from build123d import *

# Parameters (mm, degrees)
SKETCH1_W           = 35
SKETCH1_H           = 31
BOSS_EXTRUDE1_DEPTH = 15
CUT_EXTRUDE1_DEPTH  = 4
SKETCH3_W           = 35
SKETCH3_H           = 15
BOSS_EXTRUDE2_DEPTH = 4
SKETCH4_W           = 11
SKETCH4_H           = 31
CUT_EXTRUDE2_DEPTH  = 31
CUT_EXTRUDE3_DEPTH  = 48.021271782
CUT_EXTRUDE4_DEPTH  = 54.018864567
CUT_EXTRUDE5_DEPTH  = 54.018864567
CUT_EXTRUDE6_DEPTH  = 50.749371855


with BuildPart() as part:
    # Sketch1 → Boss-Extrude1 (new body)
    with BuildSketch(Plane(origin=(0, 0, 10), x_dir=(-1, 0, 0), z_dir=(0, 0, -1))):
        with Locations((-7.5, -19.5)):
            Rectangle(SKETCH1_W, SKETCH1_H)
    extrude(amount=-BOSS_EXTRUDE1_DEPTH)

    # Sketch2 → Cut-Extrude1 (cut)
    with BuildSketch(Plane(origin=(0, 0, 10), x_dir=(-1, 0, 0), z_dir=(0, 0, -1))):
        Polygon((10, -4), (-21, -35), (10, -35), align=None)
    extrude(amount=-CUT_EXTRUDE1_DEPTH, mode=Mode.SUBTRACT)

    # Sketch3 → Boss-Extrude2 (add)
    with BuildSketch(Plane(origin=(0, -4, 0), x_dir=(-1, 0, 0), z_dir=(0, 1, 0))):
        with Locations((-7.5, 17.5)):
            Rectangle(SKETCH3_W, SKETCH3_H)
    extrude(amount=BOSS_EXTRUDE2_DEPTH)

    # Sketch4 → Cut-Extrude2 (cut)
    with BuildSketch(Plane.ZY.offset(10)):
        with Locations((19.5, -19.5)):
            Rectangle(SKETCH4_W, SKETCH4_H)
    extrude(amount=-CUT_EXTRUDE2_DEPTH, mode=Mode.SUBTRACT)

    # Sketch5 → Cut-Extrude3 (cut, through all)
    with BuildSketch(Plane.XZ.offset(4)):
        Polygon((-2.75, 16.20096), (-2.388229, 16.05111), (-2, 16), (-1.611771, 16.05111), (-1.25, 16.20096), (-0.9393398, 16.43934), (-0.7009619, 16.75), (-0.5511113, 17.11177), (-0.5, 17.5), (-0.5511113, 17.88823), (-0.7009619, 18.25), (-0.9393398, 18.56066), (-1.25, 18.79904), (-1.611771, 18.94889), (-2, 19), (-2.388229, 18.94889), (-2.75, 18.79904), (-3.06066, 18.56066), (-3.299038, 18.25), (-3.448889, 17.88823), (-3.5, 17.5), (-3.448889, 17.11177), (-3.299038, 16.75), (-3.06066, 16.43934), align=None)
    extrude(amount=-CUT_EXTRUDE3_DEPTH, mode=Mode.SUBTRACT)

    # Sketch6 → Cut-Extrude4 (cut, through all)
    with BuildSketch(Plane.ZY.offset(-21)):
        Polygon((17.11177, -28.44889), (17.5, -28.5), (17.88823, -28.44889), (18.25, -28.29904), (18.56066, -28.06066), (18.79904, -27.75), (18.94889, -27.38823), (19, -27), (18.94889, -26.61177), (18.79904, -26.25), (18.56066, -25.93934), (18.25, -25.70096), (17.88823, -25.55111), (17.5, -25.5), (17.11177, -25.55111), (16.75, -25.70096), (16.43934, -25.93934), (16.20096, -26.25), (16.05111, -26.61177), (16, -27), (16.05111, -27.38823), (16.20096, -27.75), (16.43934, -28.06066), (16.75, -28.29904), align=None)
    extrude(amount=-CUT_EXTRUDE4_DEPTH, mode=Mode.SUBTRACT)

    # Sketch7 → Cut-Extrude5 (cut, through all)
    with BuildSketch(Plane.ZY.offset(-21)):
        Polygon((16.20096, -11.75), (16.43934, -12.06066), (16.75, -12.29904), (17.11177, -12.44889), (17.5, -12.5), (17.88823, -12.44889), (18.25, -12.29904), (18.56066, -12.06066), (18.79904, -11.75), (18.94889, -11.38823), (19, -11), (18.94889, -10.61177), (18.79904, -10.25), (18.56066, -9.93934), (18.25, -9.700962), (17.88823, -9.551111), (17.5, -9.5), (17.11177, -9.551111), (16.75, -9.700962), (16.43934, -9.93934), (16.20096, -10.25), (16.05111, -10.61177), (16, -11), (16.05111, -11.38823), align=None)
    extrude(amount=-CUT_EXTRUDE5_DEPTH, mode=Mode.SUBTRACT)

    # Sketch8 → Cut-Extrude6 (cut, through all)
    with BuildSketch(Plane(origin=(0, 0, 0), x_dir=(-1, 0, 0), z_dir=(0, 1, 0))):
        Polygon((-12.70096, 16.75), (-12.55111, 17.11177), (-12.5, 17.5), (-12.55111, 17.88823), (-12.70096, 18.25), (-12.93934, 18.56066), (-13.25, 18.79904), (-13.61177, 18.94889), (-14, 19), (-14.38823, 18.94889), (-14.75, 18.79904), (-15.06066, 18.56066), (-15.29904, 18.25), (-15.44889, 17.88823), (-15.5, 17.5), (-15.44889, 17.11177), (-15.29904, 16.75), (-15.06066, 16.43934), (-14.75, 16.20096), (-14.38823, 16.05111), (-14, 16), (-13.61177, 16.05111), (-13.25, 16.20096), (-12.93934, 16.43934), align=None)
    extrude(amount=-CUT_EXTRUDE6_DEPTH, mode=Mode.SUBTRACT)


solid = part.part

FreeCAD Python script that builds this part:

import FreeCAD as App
import Part
import Sketcher
Q = App.Units.Quantity


def add_polygon(sketch, points):
    """Adds a closed chain of lines whose ends are joined by coincident constraints."""
    first, n = sketch.GeometryCount, len(points)
    for a, b in zip(points, points[1:] + points[:1]):
        sketch.addGeometry(Part.LineSegment(App.Vector(*a, 0), App.Vector(*b, 0)), False)
    for i in range(n):
        sketch.addConstraint(Sketcher.Constraint("Coincident", first + i, 2, first + (i + 1) % n, 1))

doc = App.newDocument("Part")
params = doc.addObject("Spreadsheet::Sheet", "Params")
for row, (alias, value) in enumerate([
    ("sketch1_width", "35 mm"),
    ("sketch1_height", "31 mm"),
    ("pad1_length", "15 mm"),
    ("sketch2_width", "31 mm"),
    ("pocket1_length", "4 mm"),
    ("sketch3_width", "35 mm"),
    ("sketch3_height", "15 mm"),
    ("pad2_length", "4 mm"),
    ("sketch4_width", "31 mm"),
    ("sketch4_height", "11 mm"),
    ("pocket2_length", "31 mm"),
], start=1):
    params.set(f"A{row}", alias)
    params.set(f"B{row}", "=" + value)
    params.setAlias(f"B{row}", alias)

body = doc.addObject("PartDesign::Body", "Body")

# Sketch on XY plane
sketch1 = body.newObject("Sketcher::SketchObject", "Sketch")
sketch1.AttachmentSupport = (doc.getObject("XY_Plane"), [""])
sketch1.MapMode = "FlatFace"
sketch1.AttachmentOffset = App.Placement(App.Vector(0, 0, 10), App.Rotation())
add_polygon(sketch1, [(25, -4), (25, -35), (-10, -35), (-10, -4)])  # lines 0-3
sketch1.addConstraint(Sketcher.Constraint("Vertical", 0))
sketch1.addConstraint(Sketcher.Constraint("Horizontal", 1))
sketch1.addConstraint(Sketcher.Constraint("Vertical", 2))
sketch1.addConstraint(Sketcher.Constraint("Horizontal", 3))
sketch1.addConstraint(Sketcher.Constraint("DistanceX", 1, 2, 1, 1, 35.0))
sketch1.addConstraint(Sketcher.Constraint("DistanceY", 0, 2, 0, 1, 31.0))
sketch1.addConstraint(Sketcher.Constraint("DistanceX", -1, 1, 0, 2, 25.0))
sketch1.addConstraint(Sketcher.Constraint("DistanceY", 0, 2, -1, 1, 35.0))
sketch1.setExpression("Constraints[8]", "Params.sketch1_width")
sketch1.setExpression("Constraints[9]", "Params.sketch1_height")
pad1 = body.newObject("PartDesign::Pad", "Pad")
pad1.Profile = sketch1
pad1.setExpression("Length", "Params.pad1_length")

# Sketch on XY plane
sketch2 = body.newObject("Sketcher::SketchObject", "Sketch001")
sketch2.AttachmentSupport = (doc.getObject("XY_Plane"), [""])
sketch2.MapMode = "FlatFace"
sketch2.AttachmentOffset = App.Placement(App.Vector(0, 0, 10), App.Rotation())
add_polygon(sketch2, [(-10, -4), (21, -35), (-10, -35)])  # lines 0-2
sketch2.addConstraint(Sketcher.Constraint("Horizontal", 1))
sketch2.addConstraint(Sketcher.Constraint("Vertical", 2))
sketch2.addConstraint(Sketcher.Constraint("Equal", 1, 2))
sketch2.addConstraint(Sketcher.Constraint("DistanceX", 1, 2, 1, 1, 31.0))
sketch2.addConstraint(Sketcher.Constraint("DistanceX", -1, 1, 0, 2, 21.0))
sketch2.addConstraint(Sketcher.Constraint("DistanceY", 0, 2, -1, 1, 35.0))
sketch2.setExpression("Constraints[6]", "Params.sketch2_width")
pocket1 = body.newObject("PartDesign::Pocket", "Pocket")
pocket1.Profile = sketch2
pocket1.setExpression("Length", "Params.pocket1_length")
pocket1.Reversed = True

# Sketch on XZ plane
sketch3 = body.newObject("Sketcher::SketchObject", "Sketch002")
sketch3.AttachmentSupport = (doc.getObject("XZ_Plane"), [""])
sketch3.MapMode = "FlatFace"
sketch3.AttachmentOffset = App.Placement(App.Vector(0, 0, 4), App.Rotation())
add_polygon(sketch3, [(25, 25), (25, 10), (-10, 10), (-10, 25)])  # lines 0-3
sketch3.addConstraint(Sketcher.Constraint("Vertical", 0))
sketch3.addConstraint(Sketcher.Constraint("Horizontal", 1))
sketch3.addConstraint(Sketcher.Constraint("Vertical", 2))
sketch3.addConstraint(Sketcher.Constraint("Horizontal", 3))
sketch3.addConstraint(Sketcher.Constraint("DistanceX", 1, 2, 1, 1, 35.0))
sketch3.addConstraint(Sketcher.Constraint("DistanceY", 0, 2, 0, 1, 15.0))
sketch3.addConstraint(Sketcher.Constraint("DistanceX", -1, 1, 0, 2, 25.0))
sketch3.addConstraint(Sketcher.Constraint("DistanceY", -1, 1, 0, 2, 10.0))
sketch3.setExpression("Constraints[8]", "Params.sketch3_width")
sketch3.setExpression("Constraints[9]", "Params.sketch3_height")
pad2 = body.newObject("PartDesign::Pad", "Pad001")
pad2.Profile = sketch3
pad2.setExpression("Length", "Params.pad2_length")
pad2.Reversed = True

# Sketch on YZ plane
sketch4 = body.newObject("Sketcher::SketchObject", "Sketch003")
sketch4.AttachmentSupport = (doc.getObject("YZ_Plane"), [""])
sketch4.MapMode = "FlatFace"
sketch4.AttachmentOffset = App.Placement(App.Vector(0, 0, -10), App.Rotation())
add_polygon(sketch4, [(-4, 14), (-35, 14), (-35, 25), (-4, 25)])  # lines 0-3
sketch4.addConstraint(Sketcher.Constraint("Horizontal", 0))
sketch4.addConstraint(Sketcher.Constraint("Vertical", 1))
sketch4.addConstraint(Sketcher.Constraint("Horizontal", 2))
sketch4.addConstraint(Sketcher.Constraint("Vertical", 3))
sketch4.addConstraint(Sketcher.Constraint("DistanceX", 0, 2, 0, 1, 31.0))
sketch4.addConstraint(Sketcher.Constraint("DistanceY", 1, 1, 1, 2, 11.0))
sketch4.addConstraint(Sketcher.Constraint("DistanceX", 0, 2, -1, 1, 35.0))
sketch4.addConstraint(Sketcher.Constraint("DistanceY", -1, 1, 0, 2, 14.0))
sketch4.setExpression("Constraints[8]", "Params.sketch4_width")
sketch4.setExpression("Constraints[9]", "Params.sketch4_height")
pocket2 = body.newObject("PartDesign::Pocket", "Pocket001")
pocket2.Profile = sketch4
pocket2.setExpression("Length", "Params.pocket2_length")
pocket2.Reversed = True

# Sketch on XZ plane
sketch5 = body.newObject("Sketcher::SketchObject", "Sketch004")
sketch5.AttachmentSupport = (doc.getObject("XZ_Plane"), [""])
sketch5.MapMode = "FlatFace"
sketch5.AttachmentOffset = App.Placement(App.Vector(0, 0, 4), App.Rotation())
add_polygon(sketch5, [(-2.75, 16.2), (-2.39, 16.05), (-2, 16), (-1.61, 16.05), (-1.25, 16.2), (-0.94, 16.44), (-0.7, 16.75), (-0.55, 17.11), (-0.5, 17.5), (-0.55, 17.89), (-0.7, 18.25), (-0.94, 18.56), (-1.25, 18.8), (-1.61, 18.95), (-2, 19), (-2.39, 18.95), (-2.75, 18.8), (-3.06, 18.56), (-3.3, 18.25), (-3.45, 17.89), (-3.5, 17.5), (-3.45, 17.11), (-3.3, 16.75), (-3.06, 16.44)])  # lines 0-23
sketch5.addConstraint(Sketcher.Constraint("Parallel", 0, 12))
sketch5.addConstraint(Sketcher.Constraint("Parallel", 1, 13))
sketch5.addConstraint(Sketcher.Constraint("Parallel", 2, 14))
sketch5.addConstraint(Sketcher.Constraint("Parallel", 3, 15))
sketch5.addConstraint(Sketcher.Constraint("Parallel", 4, 16))
sketch5.addConstraint(Sketcher.Constraint("Parallel", 5, 17))
sketch5.addConstraint(Sketcher.Constraint("Parallel", 6, 18))
sketch5.addConstraint(Sketcher.Constraint("Parallel", 7, 19))
sketch5.addConstraint(Sketcher.Constraint("Parallel", 8, 20))
sketch5.addConstraint(Sketcher.Constraint("Parallel", 9, 21))
sketch5.addConstraint(Sketcher.Constraint("Parallel", 10, 22))
sketch5.addConstraint(Sketcher.Constraint("Parallel", 11, 23))
sketch5.addConstraint(Sketcher.Constraint("Horizontal", 0, 2, 2, 2))
sketch5.addConstraint(Sketcher.Constraint("Horizontal", 12, 2, 14, 2))
sketch5.addConstraint(Sketcher.Constraint("Horizontal", 11, 2, 15, 2))
sketch5.addConstraint(Sketcher.Constraint("Horizontal", 10, 2, 16, 2))
sketch5.addConstraint(Sketcher.Constraint("Horizontal", 9, 2, 17, 2))
sketch5.addConstraint(Sketcher.Constraint("Horizontal", 8, 2, 18, 2))
sketch5.addConstraint(Sketcher.Constraint("Horizontal", 7, 2, 19, 2))
sketch5.addConstraint(Sketcher.Constraint("Horizontal", 6, 2, 20, 2))
sketch5.addConstraint(Sketcher.Constraint("Horizontal", 5, 2, 21, 2))
sketch5.addConstraint(Sketcher.Constraint("Horizontal", 4, 2, 22, 2))
sketch5.addConstraint(Sketcher.Constraint("Horizontal", 3, 2, 23, 2))
sketch5.addConstraint(Sketcher.Constraint("Vertical", 6, 2, 8, 2))
sketch5.addConstraint(Sketcher.Constraint("Vertical", 5, 2, 9, 2))
sketch5.addConstraint(Sketcher.Constraint("Vertical", 4, 2, 10, 2))
sketch5.addConstraint(Sketcher.Constraint("Vertical", 3, 2, 11, 2))
sketch5.addConstraint(Sketcher.Constraint("Vertical", 2, 2, 12, 2))
sketch5.addConstraint(Sketcher.Constraint("Vertical", 1, 2, 13, 2))
sketch5.addConstraint(Sketcher.Constraint("Vertical", 0, 2, 14, 2))
sketch5.addConstraint(Sketcher.Constraint("Vertical", 18, 2, 20, 2))
sketch5.addConstraint(Sketcher.Constraint("Vertical", 17, 2, 21, 2))
sketch5.addConstraint(Sketcher.Constraint("Vertical", 16, 2, 22, 2))
sketch5.addConstraint(Sketcher.Constraint("Vertical", 15, 2, 23, 2))
sketch5.addConstraint(Sketcher.Constraint("Equal", 0, 1))
sketch5.addConstraint(Sketcher.Constraint("Equal", 3, 4))
sketch5.addConstraint(Sketcher.Constraint("Equal", 4, 5))
sketch5.addConstraint(Sketcher.Constraint("Equal", 5, 6))
sketch5.addConstraint(Sketcher.Constraint("Equal", 5, 7))
sketch5.addConstraint(Sketcher.Constraint("DistanceX", 1, 2, -1, 1, 2.0))
sketch5.addConstraint(Sketcher.Constraint("DistanceY", -1, 1, 1, 2, 16.0))
sketch5.addConstraint(Sketcher.Constraint("DistanceY", -1, 1, 13, 2, 19.0))
sketch5.addConstraint(Sketcher.Constraint("Angle", 5, Q("52.499989 deg")))
sketch5.addConstraint(Sketcher.Constraint("DistanceX", 7, 2, -1, 1, 0.5))
sketch5.addConstraint(Sketcher.Constraint("DistanceY", 5, 2, 9, 2, 1.5))
sketch5.addConstraint(Sketcher.Constraint("DistanceX", 15, 2, 11, 2, 1.5))
sketch5.addConstraint(Sketcher.Constraint("Distance", 1, 0.391579))
sketch5.addConstraint(Sketcher.Constraint("DistanceX", 0, 2, -1, 1, 2.388229))
pocket3 = body.newObject("PartDesign::Pocket", "Pocket002")
pocket3.Profile = sketch5
pocket3.Type = "ThroughAll"

# Sketch on YZ plane
sketch6 = body.newObject("Sketcher::SketchObject", "Sketch005")
sketch6.AttachmentSupport = (doc.getObject("YZ_Plane"), [""])
sketch6.MapMode = "FlatFace"
sketch6.AttachmentOffset = App.Placement(App.Vector(0, 0, 21), App.Rotation())
add_polygon(sketch6, [(-28.45, 17.11), (-28.5, 17.5), (-28.45, 17.89), (-28.3, 18.25), (-28.06, 18.56), (-27.75, 18.8), (-27.39, 18.95), (-27, 19), (-26.61, 18.95), (-26.25, 18.8), (-25.94, 18.56), (-25.7, 18.25), (-25.55, 17.89), (-25.5, 17.5), (-25.55, 17.11), (-25.7, 16.75), (-25.94, 16.44), (-26.25, 16.2), (-26.61, 16.05), (-27, 16), (-27.39, 16.05), (-27.75, 16.2), (-28.06, 16.44), (-28.3, 16.75)])  # lines 0-23
sketch6.addConstraint(Sketcher.Constraint("Perpendicular", 0, 6))
sketch6.addConstraint(Sketcher.Constraint("Perpendicular", 1, 7))
sketch6.addConstraint(Sketcher.Constraint("Perpendicular", 2, 8))
sketch6.addConstraint(Sketcher.Constraint("Perpendicular", 3, 9))
sketch6.addConstraint(Sketcher.Constraint("Perpendicular", 4, 10))
sketch6.addConstraint(Sketcher.Constraint("Perpendicular", 5, 11))
sketch6.addConstraint(Sketcher.Constraint("Perpendicular", 6, 12))
sketch6.addConstraint(Sketcher.Constraint("Perpendicular", 7, 13))
sketch6.addConstraint(Sketcher.Constraint("Perpendicular", 8, 14))
sketch6.addConstraint(Sketcher.Constraint("Perpendicular", 9, 15))
sketch6.addConstraint(Sketcher.Constraint("Perpendicular", 10, 16))
sketch6.addConstraint(Sketcher.Constraint("Perpendicular", 11, 17))
sketch6.addConstraint(Sketcher.Constraint("Perpendicular", 12, 18))
sketch6.addConstraint(Sketcher.Constraint("Perpendicular", 13, 19))
sketch6.addConstraint(Sketcher.Constraint("Perpendicular", 14, 20))
sketch6.addConstraint(Sketcher.Constraint("Perpendicular", 15, 21))
sketch6.addConstraint(Sketcher.Constraint("Perpendicular", 16, 22))
sketch6.addConstraint(Sketcher.Constraint("Perpendicular", 17, 23))
sketch6.addConstraint(Sketcher.Constraint("Horizontal", 5, 2, 7, 2))
sketch6.addConstraint(Sketcher.Constraint("Horizontal", 4, 2, 8, 2))
sketch6.addConstraint(Sketcher.Constraint("Horizontal", 3, 2, 9, 2))
sketch6.addConstraint(Sketcher.Constraint("Horizontal", 2, 2, 10, 2))
sketch6.addConstraint(Sketcher.Constraint("Horizontal", 1, 2, 11, 2))
sketch6.addConstraint(Sketcher.Constraint("Horizontal", 0, 2, 12, 2))
sketch6.addConstraint(Sketcher.Constraint("Horizontal", 17, 2, 19, 2))
sketch6.addConstraint(Sketcher.Constraint("Horizontal", 16, 2, 20, 2))
sketch6.addConstraint(Sketcher.Constraint("Horizontal", 15, 2, 21, 2))
sketch6.addConstraint(Sketcher.Constraint("Horizontal", 14, 2, 22, 2))
sketch6.addConstraint(Sketcher.Constraint("Horizontal", 13, 2, 23, 2))
sketch6.addConstraint(Sketcher.Constraint("Vertical", 11, 2, 13, 2))
sketch6.addConstraint(Sketcher.Constraint("Vertical", 10, 2, 14, 2))
sketch6.addConstraint(Sketcher.Constraint("Vertical", 9, 2, 15, 2))
sketch6.addConstraint(Sketcher.Constraint("Vertical", 8, 2, 16, 2))
sketch6.addConstraint(Sketcher.Constraint("Vertical", 7, 2, 17, 2))
sketch6.addConstraint(Sketcher.Constraint("Vertical", 6, 2, 18, 2))
sketch6.addConstraint(Sketcher.Constraint("Vertical", 5, 2, 19, 2))
sketch6.addConstraint(Sketcher.Constraint("Vertical", 4, 2, 20, 2))
sketch6.addConstraint(Sketcher.Constraint("Equal", 1, 3))
sketch6.addConstraint(Sketcher.Constraint("Equal", 3, 4))
sketch6.addConstraint(Sketcher.Constraint("Equal", 2, 5))
sketch6.addConstraint(Sketcher.Constraint("Equal", 4, 6))
sketch6.addConstraint(Sketcher.Constraint("DistanceX", 6, 2, -1, 1, 27.0))
sketch6.addConstraint(Sketcher.Constraint("DistanceY", -1, 1, 6, 2, 19.0))
sketch6.addConstraint(Sketcher.Constraint("DistanceY", -1, 1, 18, 2, 16.0))
sketch6.addConstraint(Sketcher.Constraint("Angle", 2, Q("67.500005 deg")))
sketch6.addConstraint(Sketcher.Constraint("DistanceX", 4, 2, 8, 2, 1.5))
sketch6.addConstraint(Sketcher.Constraint("Distance", 0, 0.39158))
sketch6.addConstraint(Sketcher.Constraint("DistanceX", 1, 2, -1, 1, 28.44889))
pocket4 = body.newObject("PartDesign::Pocket", "Pocket003")
pocket4.Profile = sketch6
pocket4.Type = "ThroughAll"
pocket4.Reversed = True

# Sketch on YZ plane
sketch7 = body.newObject("Sketcher::SketchObject", "Sketch006")
sketch7.AttachmentSupport = (doc.getObject("YZ_Plane"), [""])
sketch7.MapMode = "FlatFace"
sketch7.AttachmentOffset = App.Placement(App.Vector(0, 0, 21), App.Rotation())
add_polygon(sketch7, [(-11.75, 16.20096), (-12.06066, 16.43934), (-12.29904, 16.75), (-12.44889, 17.11177), (-12.5, 17.5), (-12.44889, 17.88823), (-12.29904, 18.25), (-12.06066, 18.56066), (-11.75, 18.79904), (-11.38823, 18.94889), (-11, 19), (-10.61177, 18.94889), (-10.25, 18.79904), (-9.93934, 18.56066), (-9.700962, 18.25), (-9.551111, 17.88823), (-9.5, 17.5), (-9.551111, 17.11177), (-9.700962, 16.75), (-9.93934, 16.43934), (-10.25, 16.20096), (-10.61177, 16.05111), (-11, 16), (-11.38823, 16.05111)])  # lines 0-23
sketch7.addConstraint(Sketcher.Constraint("DistanceX", 9, 2, -1, 1, 11.0))
sketch7.addConstraint(Sketcher.Constraint("DistanceY", -1, 1, 9, 2, 19.0))
sketch7.addConstraint(Sketcher.Constraint("DistanceX", 21, 2, -1, 1, 11.0))
sketch7.addConstraint(Sketcher.Constraint("DistanceY", -1, 1, 21, 2, 16.0))
sketch7.addConstraint(Sketcher.Constraint("DistanceX", 3, 2, -1, 1, 12.5))
sketch7.addConstraint(Sketcher.Constraint("DistanceY", -1, 1, 3, 2, 17.5))
sketch7.addConstraint(Sketcher.Constraint("DistanceX", 15, 2, -1, 1, 9.5))
sketch7.addConstraint(Sketcher.Constraint("DistanceY", -1, 1, 15, 2, 17.5))
sketch7.addConstraint(Sketcher.Constraint("DistanceY", 1, 2, 5, 2, 1.5))
sketch7.addConstraint(Sketcher.Constraint("DistanceX", 7, 2, 11, 2, 1.5))
sketch7.addConstraint(Sketcher.Constraint("DistanceY", 17, 2, 13, 2, 1.5))
sketch7.addConstraint(Sketcher.Constraint("DistanceY", -1, 1, 1, 2, 16.75))
sketch7.addConstraint(Sketcher.Constraint("DistanceX", 7, 2, -1, 1, 11.75))
sketch7.addConstraint(Sketcher.Constraint("DistanceY", -1, 1, 13, 2, 18.25))
sketch7.addConstraint(Sketcher.Constraint("DistanceX", 19, 2, -1, 1, 10.25))
sketch7.addConstraint(Sketcher.Constraint("DistanceX", 23, 2, -1, 1, 11.75))
sketch7.addConstraint(Sketcher.Constraint("Distance", 0, 0.39158))
sketch7.addConstraint(Sketcher.Constraint("Distance", 1, 0.39158))
sketch7.addConstraint(Sketcher.Constraint("Distance", 3, 0.39158))
sketch7.addConstraint(Sketcher.Constraint("Distance", 4, 0.39158))
sketch7.addConstraint(Sketcher.Constraint("Distance", 6, 0.39158))
sketch7.addConstraint(Sketcher.Constraint("Distance", 7, 0.39158))
sketch7.addConstraint(Sketcher.Constraint("Distance", 9, 0.39158))
sketch7.addConstraint(Sketcher.Constraint("Distance", 10, 0.39158))
sketch7.addConstraint(Sketcher.Constraint("Distance", 12, 0.39158))
sketch7.addConstraint(Sketcher.Constraint("Distance", 13, 0.391578))
sketch7.addConstraint(Sketcher.Constraint("Distance", 15, 0.39158))
sketch7.addConstraint(Sketcher.Constraint("Distance", 16, 0.39158))
sketch7.addConstraint(Sketcher.Constraint("Distance", 18, 0.391578))
sketch7.addConstraint(Sketcher.Constraint("Distance", 19, 0.39158))
sketch7.addConstraint(Sketcher.Constraint("Distance", 21, 0.39158))
sketch7.addConstraint(Sketcher.Constraint("Distance", 22, 0.39158))
sketch7.addConstraint(Sketcher.Constraint("DistanceX", 0, 2, -1, 1, 12.06066))
sketch7.addConstraint(Sketcher.Constraint("DistanceY", -1, 1, 0, 2, 16.43934))
sketch7.addConstraint(Sketcher.Constraint("DistanceX", 2, 2, -1, 1, 12.44889))
sketch7.addConstraint(Sketcher.Constraint("DistanceX", 4, 2, -1, 1, 12.44889))
sketch7.addConstraint(Sketcher.Constraint("DistanceX", 5, 2, -1, 1, 12.29904))
sketch7.addConstraint(Sketcher.Constraint("DistanceX", 6, 2, -1, 1, 12.06066))
sketch7.addConstraint(Sketcher.Constraint("DistanceX", 8, 2, -1, 1, 11.38823))
sketch7.addConstraint(Sketcher.Constraint("DistanceX", 10, 2, -1, 1, 10.61177))
sketch7.addConstraint(Sketcher.Constraint("DistanceY", -1, 1, 11, 2, 18.79904))
sketch7.addConstraint(Sketcher.Constraint("DistanceX", 12, 2, -1, 1, 9.93934))
sketch7.addConstraint(Sketcher.Constraint("DistanceX", 14, 2, -1, 1, 9.551111))
sketch7.addConstraint(Sketcher.Constraint("DistanceX", 16, 2, -1, 1, 9.551111))
sketch7.addConstraint(Sketcher.Constraint("DistanceX", 18, 2, -1, 1, 9.93934))
sketch7.addConstraint(Sketcher.Constraint("DistanceY", -1, 1, 18, 2, 16.43934))
sketch7.addConstraint(Sketcher.Constraint("DistanceX", 20, 2, -1, 1, 10.61177))
sketch7.addConstraint(Sketcher.Constraint("DistanceX", 22, 2, -1, 1, 11.38823))
pocket5 = body.newObject("PartDesign::Pocket", "Pocket004")
pocket5.Profile = sketch7
pocket5.Type = "ThroughAll"
pocket5.Reversed = True

# Sketch on XZ plane
sketch8 = body.newObject("Sketcher::SketchObject", "Sketch007")
sketch8.AttachmentSupport = (doc.getObject("XZ_Plane"), [""])
sketch8.MapMode = "FlatFace"
add_polygon(sketch8, [(12.7, 16.75), (12.55, 17.11), (12.5, 17.5), (12.55, 17.89), (12.7, 18.25), (12.94, 18.56), (13.25, 18.8), (13.61, 18.95), (14, 19), (14.39, 18.95), (14.75, 18.8), (15.06, 18.56), (15.3, 18.25), (15.45, 17.89), (15.5, 17.5), (15.45, 17.11), (15.3, 16.75), (15.06, 16.44), (14.75, 16.2), (14.39, 16.05), (14, 16), (13.61, 16.05), (13.25, 16.2), (12.94, 16.44)])  # lines 0-23
sketch8.addConstraint(Sketcher.Constraint("Perpendicular", 0, 6))
sketch8.addConstraint(Sketcher.Constraint("Perpendicular", 1, 7))
sketch8.addConstraint(Sketcher.Constraint("Perpendicular", 2, 8))
sketch8.addConstraint(Sketcher.Constraint("Perpendicular", 3, 9))
sketch8.addConstraint(Sketcher.Constraint("Perpendicular", 4, 10))
sketch8.addConstraint(Sketcher.Constraint("Perpendicular", 5, 11))
sketch8.addConstraint(Sketcher.Constraint("Perpendicular", 6, 12))
sketch8.addConstraint(Sketcher.Constraint("Perpendicular", 7, 13))
sketch8.addConstraint(Sketcher.Constraint("Perpendicular", 8, 14))
sketch8.addConstraint(Sketcher.Constraint("Perpendicular", 9, 15))
sketch8.addConstraint(Sketcher.Constraint("Perpendicular", 10, 16))
sketch8.addConstraint(Sketcher.Constraint("Perpendicular", 11, 17))
sketch8.addConstraint(Sketcher.Constraint("Perpendicular", 12, 18))
sketch8.addConstraint(Sketcher.Constraint("Perpendicular", 13, 19))
sketch8.addConstraint(Sketcher.Constraint("Perpendicular", 14, 20))
sketch8.addConstraint(Sketcher.Constraint("Perpendicular", 15, 21))
sketch8.addConstraint(Sketcher.Constraint("Perpendicular", 16, 22))
sketch8.addConstraint(Sketcher.Constraint("Perpendicular", 17, 23))
sketch8.addConstraint(Sketcher.Constraint("Horizontal", 6, 2, 8, 2))
sketch8.addConstraint(Sketcher.Constraint("Horizontal", 5, 2, 9, 2))
sketch8.addConstraint(Sketcher.Constraint("Horizontal", 4, 2, 10, 2))
sketch8.addConstraint(Sketcher.Constraint("Horizontal", 3, 2, 11, 2))
sketch8.addConstraint(Sketcher.Constraint("Horizontal", 2, 2, 12, 2))
sketch8.addConstraint(Sketcher.Constraint("Horizontal", 1, 2, 13, 2))
sketch8.addConstraint(Sketcher.Constraint("Horizontal", 0, 2, 14, 2))
sketch8.addConstraint(Sketcher.Constraint("Horizontal", 18, 2, 20, 2))
sketch8.addConstraint(Sketcher.Constraint("Horizontal", 17, 2, 21, 2))
sketch8.addConstraint(Sketcher.Constraint("Horizontal", 16, 2, 22, 2))
sketch8.addConstraint(Sketcher.Constraint("Horizontal", 15, 2, 23, 2))
sketch8.addConstraint(Sketcher.Constraint("Vertical", 0, 2, 2, 2))
sketch8.addConstraint(Sketcher.Constraint("Vertical", 12, 2, 14, 2))
sketch8.addConstraint(Sketcher.Constraint("Vertical", 11, 2, 15, 2))
sketch8.addConstraint(Sketcher.Constraint("Vertical", 10, 2, 16, 2))
sketch8.addConstraint(Sketcher.Constraint("Vertical", 9, 2, 17, 2))
sketch8.addConstraint(Sketcher.Constraint("Vertical", 8, 2, 18, 2))
sketch8.addConstraint(Sketcher.Constraint("Vertical", 7, 2, 19, 2))
sketch8.addConstraint(Sketcher.Constraint("Vertical", 5, 2, 21, 2))
sketch8.addConstraint(Sketcher.Constraint("Equal", 2, 4))
sketch8.addConstraint(Sketcher.Constraint("Equal", 4, 5))
sketch8.addConstraint(Sketcher.Constraint("Equal", 3, 6))
sketch8.addConstraint(Sketcher.Constraint("Equal", 5, 7))
sketch8.addConstraint(Sketcher.Constraint("DistanceX", -1, 1, 7, 2, 14.0))
sketch8.addConstraint(Sketcher.Constraint("DistanceY", -1, 1, 7, 2, 19.0))
sketch8.addConstraint(Sketcher.Constraint("DistanceY", -1, 1, 19, 2, 16.0))
sketch8.addConstraint(Sketcher.Constraint("Angle", 0, Q("112.499995 deg")))
sketch8.addConstraint(Sketcher.Constraint("DistanceX", 5, 2, 9, 2, 1.5))
sketch8.addConstraint(Sketcher.Constraint("Distance", 1, 0.39158))
sketch8.addConstraint(Sketcher.Constraint("DistanceX", -1, 1, 0, 2, 12.55111))
pocket6 = body.newObject("PartDesign::Pocket", "Pocket005")
pocket6.Profile = sketch8
pocket6.Type = "ThroughAll"
pocket6.Reversed = True

doc.recompute()
